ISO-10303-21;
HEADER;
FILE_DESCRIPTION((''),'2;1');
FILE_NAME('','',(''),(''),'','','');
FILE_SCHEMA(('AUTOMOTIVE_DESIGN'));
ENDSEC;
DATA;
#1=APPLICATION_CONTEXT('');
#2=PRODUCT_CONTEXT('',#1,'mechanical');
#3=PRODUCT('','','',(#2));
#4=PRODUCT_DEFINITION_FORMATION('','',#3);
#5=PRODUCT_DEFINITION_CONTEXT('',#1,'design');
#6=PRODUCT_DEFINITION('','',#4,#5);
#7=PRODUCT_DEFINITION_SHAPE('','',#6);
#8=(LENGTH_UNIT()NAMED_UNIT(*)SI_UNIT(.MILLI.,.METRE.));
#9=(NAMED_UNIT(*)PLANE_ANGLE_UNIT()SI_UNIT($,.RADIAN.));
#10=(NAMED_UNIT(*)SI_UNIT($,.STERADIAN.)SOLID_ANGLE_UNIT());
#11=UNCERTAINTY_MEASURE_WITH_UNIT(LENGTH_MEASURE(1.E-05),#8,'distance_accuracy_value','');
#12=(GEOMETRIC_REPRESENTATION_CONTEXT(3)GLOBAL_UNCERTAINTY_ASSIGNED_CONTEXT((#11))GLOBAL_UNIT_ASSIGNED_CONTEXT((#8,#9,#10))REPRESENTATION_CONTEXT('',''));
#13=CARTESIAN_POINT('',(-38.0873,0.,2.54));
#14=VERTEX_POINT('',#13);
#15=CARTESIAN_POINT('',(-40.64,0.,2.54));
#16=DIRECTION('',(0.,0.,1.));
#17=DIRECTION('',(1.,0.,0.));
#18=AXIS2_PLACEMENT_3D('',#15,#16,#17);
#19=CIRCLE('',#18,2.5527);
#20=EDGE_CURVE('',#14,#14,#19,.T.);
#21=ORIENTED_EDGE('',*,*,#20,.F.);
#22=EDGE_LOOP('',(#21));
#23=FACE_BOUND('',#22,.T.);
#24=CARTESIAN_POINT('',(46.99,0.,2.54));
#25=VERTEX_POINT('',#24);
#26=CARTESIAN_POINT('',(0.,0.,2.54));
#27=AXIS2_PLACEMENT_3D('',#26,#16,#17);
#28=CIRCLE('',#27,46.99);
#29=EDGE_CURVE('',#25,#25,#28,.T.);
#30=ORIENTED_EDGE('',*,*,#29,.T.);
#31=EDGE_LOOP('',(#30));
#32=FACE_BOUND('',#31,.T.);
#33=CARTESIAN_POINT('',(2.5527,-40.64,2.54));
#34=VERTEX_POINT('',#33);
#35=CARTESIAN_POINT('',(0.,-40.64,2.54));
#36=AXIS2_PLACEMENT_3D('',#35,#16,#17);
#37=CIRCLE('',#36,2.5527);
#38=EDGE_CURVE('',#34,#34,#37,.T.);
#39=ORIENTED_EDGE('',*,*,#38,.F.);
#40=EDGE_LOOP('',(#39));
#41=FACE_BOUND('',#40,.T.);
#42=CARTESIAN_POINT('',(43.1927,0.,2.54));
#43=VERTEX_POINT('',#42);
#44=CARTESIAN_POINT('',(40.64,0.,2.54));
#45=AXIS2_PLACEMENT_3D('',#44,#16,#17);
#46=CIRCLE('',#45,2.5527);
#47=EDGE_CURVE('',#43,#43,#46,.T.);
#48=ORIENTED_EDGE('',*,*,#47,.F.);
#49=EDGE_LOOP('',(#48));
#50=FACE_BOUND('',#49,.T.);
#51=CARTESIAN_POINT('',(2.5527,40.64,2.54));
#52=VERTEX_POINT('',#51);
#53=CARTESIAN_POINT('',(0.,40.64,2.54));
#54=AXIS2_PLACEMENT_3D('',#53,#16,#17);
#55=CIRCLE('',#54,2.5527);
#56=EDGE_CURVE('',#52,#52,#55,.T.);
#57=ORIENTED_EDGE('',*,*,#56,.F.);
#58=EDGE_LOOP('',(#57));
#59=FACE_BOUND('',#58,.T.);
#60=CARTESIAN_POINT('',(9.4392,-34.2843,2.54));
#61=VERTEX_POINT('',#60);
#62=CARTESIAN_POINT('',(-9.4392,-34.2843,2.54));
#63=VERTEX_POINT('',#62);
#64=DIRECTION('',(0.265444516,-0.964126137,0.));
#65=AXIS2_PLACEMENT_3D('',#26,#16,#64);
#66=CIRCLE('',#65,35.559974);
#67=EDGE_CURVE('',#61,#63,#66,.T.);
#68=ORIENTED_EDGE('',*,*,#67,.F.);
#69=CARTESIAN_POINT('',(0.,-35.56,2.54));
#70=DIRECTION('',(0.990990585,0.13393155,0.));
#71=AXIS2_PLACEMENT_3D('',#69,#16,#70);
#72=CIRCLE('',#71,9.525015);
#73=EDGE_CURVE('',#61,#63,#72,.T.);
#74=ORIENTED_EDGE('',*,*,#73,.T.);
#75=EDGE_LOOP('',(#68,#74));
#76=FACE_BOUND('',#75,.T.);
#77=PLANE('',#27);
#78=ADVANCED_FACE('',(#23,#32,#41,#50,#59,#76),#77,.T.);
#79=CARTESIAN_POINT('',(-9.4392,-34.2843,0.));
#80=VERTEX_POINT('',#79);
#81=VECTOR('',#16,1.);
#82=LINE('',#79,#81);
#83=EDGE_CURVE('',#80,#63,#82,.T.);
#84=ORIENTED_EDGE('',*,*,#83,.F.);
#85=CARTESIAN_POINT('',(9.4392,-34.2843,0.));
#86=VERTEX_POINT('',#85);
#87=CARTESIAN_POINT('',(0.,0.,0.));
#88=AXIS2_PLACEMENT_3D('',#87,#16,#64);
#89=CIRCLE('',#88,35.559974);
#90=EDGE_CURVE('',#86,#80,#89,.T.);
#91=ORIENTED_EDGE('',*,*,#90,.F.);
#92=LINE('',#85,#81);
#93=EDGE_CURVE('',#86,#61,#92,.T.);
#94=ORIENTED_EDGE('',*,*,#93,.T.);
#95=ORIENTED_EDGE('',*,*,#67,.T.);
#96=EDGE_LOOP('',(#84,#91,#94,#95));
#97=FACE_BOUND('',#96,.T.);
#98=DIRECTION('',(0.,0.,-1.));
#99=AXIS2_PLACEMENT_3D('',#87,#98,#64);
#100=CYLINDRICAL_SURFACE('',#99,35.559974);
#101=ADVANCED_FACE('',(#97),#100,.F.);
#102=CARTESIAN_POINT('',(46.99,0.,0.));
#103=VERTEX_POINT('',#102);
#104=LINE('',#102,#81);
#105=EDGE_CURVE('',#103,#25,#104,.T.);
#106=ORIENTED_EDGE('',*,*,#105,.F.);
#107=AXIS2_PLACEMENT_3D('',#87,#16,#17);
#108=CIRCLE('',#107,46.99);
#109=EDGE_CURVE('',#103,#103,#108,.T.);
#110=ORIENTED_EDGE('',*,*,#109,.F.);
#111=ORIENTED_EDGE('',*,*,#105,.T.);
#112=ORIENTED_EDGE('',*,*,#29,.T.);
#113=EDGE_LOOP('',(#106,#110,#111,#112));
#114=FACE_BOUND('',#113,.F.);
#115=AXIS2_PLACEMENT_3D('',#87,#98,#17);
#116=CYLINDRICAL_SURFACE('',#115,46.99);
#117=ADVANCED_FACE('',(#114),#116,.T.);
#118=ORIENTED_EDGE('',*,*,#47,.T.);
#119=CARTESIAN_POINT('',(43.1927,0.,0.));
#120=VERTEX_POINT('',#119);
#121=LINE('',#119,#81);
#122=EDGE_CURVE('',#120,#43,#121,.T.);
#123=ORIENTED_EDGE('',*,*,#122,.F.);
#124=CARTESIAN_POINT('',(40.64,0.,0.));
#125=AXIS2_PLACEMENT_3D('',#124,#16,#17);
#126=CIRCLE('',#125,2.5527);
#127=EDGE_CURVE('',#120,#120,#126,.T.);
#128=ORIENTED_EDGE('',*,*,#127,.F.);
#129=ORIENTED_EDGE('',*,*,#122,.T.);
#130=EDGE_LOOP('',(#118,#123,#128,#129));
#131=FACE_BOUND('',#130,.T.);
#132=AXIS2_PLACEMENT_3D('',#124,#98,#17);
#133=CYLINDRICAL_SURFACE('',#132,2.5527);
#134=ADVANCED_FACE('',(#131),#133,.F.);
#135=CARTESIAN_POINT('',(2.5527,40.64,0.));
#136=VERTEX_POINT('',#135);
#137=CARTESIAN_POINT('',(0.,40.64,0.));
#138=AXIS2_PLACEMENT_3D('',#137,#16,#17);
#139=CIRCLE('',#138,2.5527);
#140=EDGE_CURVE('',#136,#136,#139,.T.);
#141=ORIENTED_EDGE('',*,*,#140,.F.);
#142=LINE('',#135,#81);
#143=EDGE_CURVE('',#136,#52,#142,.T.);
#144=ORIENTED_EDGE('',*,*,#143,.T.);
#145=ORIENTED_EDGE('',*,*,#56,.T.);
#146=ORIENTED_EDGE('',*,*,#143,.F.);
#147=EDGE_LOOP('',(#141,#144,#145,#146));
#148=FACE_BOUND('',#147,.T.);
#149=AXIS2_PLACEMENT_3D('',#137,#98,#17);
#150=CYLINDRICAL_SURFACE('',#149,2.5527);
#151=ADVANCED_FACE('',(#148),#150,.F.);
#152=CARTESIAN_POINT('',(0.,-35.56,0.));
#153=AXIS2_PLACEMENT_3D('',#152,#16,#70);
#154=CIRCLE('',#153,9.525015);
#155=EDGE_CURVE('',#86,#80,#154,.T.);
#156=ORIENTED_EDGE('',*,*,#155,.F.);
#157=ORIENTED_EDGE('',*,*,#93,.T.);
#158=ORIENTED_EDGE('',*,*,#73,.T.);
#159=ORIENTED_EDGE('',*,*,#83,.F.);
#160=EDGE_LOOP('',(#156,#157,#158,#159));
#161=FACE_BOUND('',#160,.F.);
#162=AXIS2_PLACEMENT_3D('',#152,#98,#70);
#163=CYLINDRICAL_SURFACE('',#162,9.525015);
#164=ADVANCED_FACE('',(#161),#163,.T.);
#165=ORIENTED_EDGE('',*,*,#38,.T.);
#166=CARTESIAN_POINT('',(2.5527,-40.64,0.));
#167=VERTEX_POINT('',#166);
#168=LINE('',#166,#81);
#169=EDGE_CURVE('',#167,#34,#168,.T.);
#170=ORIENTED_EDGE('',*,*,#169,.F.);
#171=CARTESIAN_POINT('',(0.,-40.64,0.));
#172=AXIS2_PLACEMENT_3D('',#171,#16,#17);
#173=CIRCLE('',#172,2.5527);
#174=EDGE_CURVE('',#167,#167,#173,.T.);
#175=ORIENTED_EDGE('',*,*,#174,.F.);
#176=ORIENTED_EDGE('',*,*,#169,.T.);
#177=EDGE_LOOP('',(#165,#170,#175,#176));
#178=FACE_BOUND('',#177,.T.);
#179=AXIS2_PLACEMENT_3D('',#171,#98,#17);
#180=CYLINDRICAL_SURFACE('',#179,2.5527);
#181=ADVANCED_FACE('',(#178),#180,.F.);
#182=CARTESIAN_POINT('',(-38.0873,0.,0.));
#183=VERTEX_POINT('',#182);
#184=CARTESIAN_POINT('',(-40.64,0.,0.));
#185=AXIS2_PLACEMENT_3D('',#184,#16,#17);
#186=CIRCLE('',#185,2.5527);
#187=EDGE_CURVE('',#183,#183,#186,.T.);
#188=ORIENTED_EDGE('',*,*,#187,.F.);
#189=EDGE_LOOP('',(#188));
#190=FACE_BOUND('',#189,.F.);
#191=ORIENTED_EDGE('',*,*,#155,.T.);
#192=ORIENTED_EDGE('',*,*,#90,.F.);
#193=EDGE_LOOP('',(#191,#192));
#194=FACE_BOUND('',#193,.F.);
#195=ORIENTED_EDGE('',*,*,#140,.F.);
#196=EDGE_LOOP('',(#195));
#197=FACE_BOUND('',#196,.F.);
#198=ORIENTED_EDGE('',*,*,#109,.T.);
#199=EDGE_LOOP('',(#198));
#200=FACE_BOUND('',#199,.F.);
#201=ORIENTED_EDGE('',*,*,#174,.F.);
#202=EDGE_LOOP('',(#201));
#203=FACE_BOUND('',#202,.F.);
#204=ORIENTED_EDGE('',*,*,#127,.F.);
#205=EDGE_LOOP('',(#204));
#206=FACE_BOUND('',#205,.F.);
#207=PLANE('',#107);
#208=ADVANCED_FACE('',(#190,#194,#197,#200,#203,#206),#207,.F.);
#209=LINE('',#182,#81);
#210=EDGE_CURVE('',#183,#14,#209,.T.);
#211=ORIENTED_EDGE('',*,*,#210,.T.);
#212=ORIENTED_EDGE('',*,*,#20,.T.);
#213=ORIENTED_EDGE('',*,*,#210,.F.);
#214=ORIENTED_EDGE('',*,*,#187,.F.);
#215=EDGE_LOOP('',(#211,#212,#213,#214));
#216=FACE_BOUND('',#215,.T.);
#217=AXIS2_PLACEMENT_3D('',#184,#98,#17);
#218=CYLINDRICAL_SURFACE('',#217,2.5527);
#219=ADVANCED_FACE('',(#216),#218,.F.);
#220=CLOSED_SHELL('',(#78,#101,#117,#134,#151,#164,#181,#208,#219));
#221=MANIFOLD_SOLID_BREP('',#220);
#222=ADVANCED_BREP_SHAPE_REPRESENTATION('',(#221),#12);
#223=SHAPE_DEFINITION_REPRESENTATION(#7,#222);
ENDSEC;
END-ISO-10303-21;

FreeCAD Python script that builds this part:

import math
import FreeCAD as App
import Part
import Sketcher
from FreeCAD import Vector
Q = App.Units.Quantity

doc = App.newDocument("Part")
params = doc.addObject("Spreadsheet::Sheet", "Params")
for row, (alias, value) in enumerate([
    ("sketch1_diameter", "3.7 in"),
    ("sketch1_radius", "1.4 in"),
    ("sketch1_diameter2", "0.201 in"),
    ("sketch1_radius2", "0.375 in"),
    ("pad1_length", "0.1 in"),
], start=1):
    params.set(f"A{row}", alias)
    params.set(f"B{row}", "=" + value)
    params.setAlias(f"B{row}", alias)

body = doc.addObject("PartDesign::Body", "Body")

# Sketch on XY plane
sketch1 = body.newObject("Sketcher::SketchObject", "Sketch")
sketch1.AttachmentSupport = (doc.getObject("XY_Plane"), [""])
sketch1.MapMode = "FlatFace"
sketch1.addGeometry(Part.Circle(Vector(0, 0, 0), Vector(0, 0, 1), 47), False)
sketch1.addGeometry(Part.Circle(Vector(0, -40.6, 0), Vector(0, 0, 1), 2.6), False)
sketch1.addGeometry(Part.Circle(Vector(-40.6, 0, 0), Vector(0, 0, 1), 2.6), False)
sketch1.addGeometry(Part.Circle(Vector(40.6, 0, 0), Vector(0, 0, 1), 2.6), False)
sketch1.addGeometry(Part.ArcOfCircle(Part.Circle(Vector(0, 0, 0), Vector(0, 0, 1), 35.6), math.radians(-75), math.radians(255)), False)
sketch1.addGeometry(Part.ArcOfCircle(Part.Circle(Vector(0, -35.6, 0), Vector(0, 0, 1), 9.5), math.radians(8), math.radians(172)), False)
sketch1.addGeometry(Part.Circle(Vector(0, 40.6, 0), Vector(0, 0, 1), 2.6), False)
sketch1.addConstraint(Sketcher.Constraint("Coincident", 4, 1, 5, 1))
sketch1.addConstraint(Sketcher.Constraint("Coincident", 5, 2, 4, 2))
sketch1.addConstraint(Sketcher.Constraint("Coincident", 0, 3, -1, 1))
sketch1.addConstraint(Sketcher.Constraint("Coincident", 4, 3, -1, 1))
sketch1.addConstraint(Sketcher.Constraint("Equal", 1, 2))
sketch1.addConstraint(Sketcher.Constraint("Equal", 2, 3))
sketch1.addConstraint(Sketcher.Constraint("Equal", 3, 6))
sketch1.addConstraint(Sketcher.Constraint("Symmetric", 2, 3, 3, 3, -1, 1))
sketch1.addConstraint(Sketcher.Constraint("Symmetric", 1, 3, 6, 3, -1, 1))
sketch1.addConstraint(Sketcher.Constraint("PointOnObject", 1, 3, -2))
sketch1.addConstraint(Sketcher.Constraint("PointOnObject", 2, 3, -1))
sketch1.addConstraint(Sketcher.Constraint("PointOnObject", 5, 3, -2))
sketch1.addConstraint(Sketcher.Constraint("Diameter", 0, Q("3.7 in")))
sketch1.addConstraint(Sketcher.Constraint("Radius", 4, Q("1.4 in")))
sketch1.addConstraint(Sketcher.Constraint("Diameter", 1, Q("0.201 in")))
sketch1.addConstraint(Sketcher.Constraint("Radius", 5, Q("0.375 in")))
sketch1.addConstraint(Sketcher.Constraint("DistanceY", 5, 3, 6, 3, Q("3 in")))
sketch1.addConstraint(Sketcher.Constraint("DistanceY", 1, 3, -1, 1, Q("1.6 in")))
sketch1.addConstraint(Sketcher.Constraint("DistanceX", 2, 3, -1, 1, Q("1.6 in")))
sketch1.setExpression("Constraints[12]", "Params.sketch1_diameter")
sketch1.setExpression("Constraints[13]", "Params.sketch1_radius")
sketch1.setExpression("Constraints[14]", "Params.sketch1_diameter2")
sketch1.setExpression("Constraints[15]", "Params.sketch1_radius2")
pad1 = body.newObject("PartDesign::Pad", "Pad")
pad1.Profile = sketch1
pad1.setExpression("Length", "Params.pad1_length")

doc.recompute()
